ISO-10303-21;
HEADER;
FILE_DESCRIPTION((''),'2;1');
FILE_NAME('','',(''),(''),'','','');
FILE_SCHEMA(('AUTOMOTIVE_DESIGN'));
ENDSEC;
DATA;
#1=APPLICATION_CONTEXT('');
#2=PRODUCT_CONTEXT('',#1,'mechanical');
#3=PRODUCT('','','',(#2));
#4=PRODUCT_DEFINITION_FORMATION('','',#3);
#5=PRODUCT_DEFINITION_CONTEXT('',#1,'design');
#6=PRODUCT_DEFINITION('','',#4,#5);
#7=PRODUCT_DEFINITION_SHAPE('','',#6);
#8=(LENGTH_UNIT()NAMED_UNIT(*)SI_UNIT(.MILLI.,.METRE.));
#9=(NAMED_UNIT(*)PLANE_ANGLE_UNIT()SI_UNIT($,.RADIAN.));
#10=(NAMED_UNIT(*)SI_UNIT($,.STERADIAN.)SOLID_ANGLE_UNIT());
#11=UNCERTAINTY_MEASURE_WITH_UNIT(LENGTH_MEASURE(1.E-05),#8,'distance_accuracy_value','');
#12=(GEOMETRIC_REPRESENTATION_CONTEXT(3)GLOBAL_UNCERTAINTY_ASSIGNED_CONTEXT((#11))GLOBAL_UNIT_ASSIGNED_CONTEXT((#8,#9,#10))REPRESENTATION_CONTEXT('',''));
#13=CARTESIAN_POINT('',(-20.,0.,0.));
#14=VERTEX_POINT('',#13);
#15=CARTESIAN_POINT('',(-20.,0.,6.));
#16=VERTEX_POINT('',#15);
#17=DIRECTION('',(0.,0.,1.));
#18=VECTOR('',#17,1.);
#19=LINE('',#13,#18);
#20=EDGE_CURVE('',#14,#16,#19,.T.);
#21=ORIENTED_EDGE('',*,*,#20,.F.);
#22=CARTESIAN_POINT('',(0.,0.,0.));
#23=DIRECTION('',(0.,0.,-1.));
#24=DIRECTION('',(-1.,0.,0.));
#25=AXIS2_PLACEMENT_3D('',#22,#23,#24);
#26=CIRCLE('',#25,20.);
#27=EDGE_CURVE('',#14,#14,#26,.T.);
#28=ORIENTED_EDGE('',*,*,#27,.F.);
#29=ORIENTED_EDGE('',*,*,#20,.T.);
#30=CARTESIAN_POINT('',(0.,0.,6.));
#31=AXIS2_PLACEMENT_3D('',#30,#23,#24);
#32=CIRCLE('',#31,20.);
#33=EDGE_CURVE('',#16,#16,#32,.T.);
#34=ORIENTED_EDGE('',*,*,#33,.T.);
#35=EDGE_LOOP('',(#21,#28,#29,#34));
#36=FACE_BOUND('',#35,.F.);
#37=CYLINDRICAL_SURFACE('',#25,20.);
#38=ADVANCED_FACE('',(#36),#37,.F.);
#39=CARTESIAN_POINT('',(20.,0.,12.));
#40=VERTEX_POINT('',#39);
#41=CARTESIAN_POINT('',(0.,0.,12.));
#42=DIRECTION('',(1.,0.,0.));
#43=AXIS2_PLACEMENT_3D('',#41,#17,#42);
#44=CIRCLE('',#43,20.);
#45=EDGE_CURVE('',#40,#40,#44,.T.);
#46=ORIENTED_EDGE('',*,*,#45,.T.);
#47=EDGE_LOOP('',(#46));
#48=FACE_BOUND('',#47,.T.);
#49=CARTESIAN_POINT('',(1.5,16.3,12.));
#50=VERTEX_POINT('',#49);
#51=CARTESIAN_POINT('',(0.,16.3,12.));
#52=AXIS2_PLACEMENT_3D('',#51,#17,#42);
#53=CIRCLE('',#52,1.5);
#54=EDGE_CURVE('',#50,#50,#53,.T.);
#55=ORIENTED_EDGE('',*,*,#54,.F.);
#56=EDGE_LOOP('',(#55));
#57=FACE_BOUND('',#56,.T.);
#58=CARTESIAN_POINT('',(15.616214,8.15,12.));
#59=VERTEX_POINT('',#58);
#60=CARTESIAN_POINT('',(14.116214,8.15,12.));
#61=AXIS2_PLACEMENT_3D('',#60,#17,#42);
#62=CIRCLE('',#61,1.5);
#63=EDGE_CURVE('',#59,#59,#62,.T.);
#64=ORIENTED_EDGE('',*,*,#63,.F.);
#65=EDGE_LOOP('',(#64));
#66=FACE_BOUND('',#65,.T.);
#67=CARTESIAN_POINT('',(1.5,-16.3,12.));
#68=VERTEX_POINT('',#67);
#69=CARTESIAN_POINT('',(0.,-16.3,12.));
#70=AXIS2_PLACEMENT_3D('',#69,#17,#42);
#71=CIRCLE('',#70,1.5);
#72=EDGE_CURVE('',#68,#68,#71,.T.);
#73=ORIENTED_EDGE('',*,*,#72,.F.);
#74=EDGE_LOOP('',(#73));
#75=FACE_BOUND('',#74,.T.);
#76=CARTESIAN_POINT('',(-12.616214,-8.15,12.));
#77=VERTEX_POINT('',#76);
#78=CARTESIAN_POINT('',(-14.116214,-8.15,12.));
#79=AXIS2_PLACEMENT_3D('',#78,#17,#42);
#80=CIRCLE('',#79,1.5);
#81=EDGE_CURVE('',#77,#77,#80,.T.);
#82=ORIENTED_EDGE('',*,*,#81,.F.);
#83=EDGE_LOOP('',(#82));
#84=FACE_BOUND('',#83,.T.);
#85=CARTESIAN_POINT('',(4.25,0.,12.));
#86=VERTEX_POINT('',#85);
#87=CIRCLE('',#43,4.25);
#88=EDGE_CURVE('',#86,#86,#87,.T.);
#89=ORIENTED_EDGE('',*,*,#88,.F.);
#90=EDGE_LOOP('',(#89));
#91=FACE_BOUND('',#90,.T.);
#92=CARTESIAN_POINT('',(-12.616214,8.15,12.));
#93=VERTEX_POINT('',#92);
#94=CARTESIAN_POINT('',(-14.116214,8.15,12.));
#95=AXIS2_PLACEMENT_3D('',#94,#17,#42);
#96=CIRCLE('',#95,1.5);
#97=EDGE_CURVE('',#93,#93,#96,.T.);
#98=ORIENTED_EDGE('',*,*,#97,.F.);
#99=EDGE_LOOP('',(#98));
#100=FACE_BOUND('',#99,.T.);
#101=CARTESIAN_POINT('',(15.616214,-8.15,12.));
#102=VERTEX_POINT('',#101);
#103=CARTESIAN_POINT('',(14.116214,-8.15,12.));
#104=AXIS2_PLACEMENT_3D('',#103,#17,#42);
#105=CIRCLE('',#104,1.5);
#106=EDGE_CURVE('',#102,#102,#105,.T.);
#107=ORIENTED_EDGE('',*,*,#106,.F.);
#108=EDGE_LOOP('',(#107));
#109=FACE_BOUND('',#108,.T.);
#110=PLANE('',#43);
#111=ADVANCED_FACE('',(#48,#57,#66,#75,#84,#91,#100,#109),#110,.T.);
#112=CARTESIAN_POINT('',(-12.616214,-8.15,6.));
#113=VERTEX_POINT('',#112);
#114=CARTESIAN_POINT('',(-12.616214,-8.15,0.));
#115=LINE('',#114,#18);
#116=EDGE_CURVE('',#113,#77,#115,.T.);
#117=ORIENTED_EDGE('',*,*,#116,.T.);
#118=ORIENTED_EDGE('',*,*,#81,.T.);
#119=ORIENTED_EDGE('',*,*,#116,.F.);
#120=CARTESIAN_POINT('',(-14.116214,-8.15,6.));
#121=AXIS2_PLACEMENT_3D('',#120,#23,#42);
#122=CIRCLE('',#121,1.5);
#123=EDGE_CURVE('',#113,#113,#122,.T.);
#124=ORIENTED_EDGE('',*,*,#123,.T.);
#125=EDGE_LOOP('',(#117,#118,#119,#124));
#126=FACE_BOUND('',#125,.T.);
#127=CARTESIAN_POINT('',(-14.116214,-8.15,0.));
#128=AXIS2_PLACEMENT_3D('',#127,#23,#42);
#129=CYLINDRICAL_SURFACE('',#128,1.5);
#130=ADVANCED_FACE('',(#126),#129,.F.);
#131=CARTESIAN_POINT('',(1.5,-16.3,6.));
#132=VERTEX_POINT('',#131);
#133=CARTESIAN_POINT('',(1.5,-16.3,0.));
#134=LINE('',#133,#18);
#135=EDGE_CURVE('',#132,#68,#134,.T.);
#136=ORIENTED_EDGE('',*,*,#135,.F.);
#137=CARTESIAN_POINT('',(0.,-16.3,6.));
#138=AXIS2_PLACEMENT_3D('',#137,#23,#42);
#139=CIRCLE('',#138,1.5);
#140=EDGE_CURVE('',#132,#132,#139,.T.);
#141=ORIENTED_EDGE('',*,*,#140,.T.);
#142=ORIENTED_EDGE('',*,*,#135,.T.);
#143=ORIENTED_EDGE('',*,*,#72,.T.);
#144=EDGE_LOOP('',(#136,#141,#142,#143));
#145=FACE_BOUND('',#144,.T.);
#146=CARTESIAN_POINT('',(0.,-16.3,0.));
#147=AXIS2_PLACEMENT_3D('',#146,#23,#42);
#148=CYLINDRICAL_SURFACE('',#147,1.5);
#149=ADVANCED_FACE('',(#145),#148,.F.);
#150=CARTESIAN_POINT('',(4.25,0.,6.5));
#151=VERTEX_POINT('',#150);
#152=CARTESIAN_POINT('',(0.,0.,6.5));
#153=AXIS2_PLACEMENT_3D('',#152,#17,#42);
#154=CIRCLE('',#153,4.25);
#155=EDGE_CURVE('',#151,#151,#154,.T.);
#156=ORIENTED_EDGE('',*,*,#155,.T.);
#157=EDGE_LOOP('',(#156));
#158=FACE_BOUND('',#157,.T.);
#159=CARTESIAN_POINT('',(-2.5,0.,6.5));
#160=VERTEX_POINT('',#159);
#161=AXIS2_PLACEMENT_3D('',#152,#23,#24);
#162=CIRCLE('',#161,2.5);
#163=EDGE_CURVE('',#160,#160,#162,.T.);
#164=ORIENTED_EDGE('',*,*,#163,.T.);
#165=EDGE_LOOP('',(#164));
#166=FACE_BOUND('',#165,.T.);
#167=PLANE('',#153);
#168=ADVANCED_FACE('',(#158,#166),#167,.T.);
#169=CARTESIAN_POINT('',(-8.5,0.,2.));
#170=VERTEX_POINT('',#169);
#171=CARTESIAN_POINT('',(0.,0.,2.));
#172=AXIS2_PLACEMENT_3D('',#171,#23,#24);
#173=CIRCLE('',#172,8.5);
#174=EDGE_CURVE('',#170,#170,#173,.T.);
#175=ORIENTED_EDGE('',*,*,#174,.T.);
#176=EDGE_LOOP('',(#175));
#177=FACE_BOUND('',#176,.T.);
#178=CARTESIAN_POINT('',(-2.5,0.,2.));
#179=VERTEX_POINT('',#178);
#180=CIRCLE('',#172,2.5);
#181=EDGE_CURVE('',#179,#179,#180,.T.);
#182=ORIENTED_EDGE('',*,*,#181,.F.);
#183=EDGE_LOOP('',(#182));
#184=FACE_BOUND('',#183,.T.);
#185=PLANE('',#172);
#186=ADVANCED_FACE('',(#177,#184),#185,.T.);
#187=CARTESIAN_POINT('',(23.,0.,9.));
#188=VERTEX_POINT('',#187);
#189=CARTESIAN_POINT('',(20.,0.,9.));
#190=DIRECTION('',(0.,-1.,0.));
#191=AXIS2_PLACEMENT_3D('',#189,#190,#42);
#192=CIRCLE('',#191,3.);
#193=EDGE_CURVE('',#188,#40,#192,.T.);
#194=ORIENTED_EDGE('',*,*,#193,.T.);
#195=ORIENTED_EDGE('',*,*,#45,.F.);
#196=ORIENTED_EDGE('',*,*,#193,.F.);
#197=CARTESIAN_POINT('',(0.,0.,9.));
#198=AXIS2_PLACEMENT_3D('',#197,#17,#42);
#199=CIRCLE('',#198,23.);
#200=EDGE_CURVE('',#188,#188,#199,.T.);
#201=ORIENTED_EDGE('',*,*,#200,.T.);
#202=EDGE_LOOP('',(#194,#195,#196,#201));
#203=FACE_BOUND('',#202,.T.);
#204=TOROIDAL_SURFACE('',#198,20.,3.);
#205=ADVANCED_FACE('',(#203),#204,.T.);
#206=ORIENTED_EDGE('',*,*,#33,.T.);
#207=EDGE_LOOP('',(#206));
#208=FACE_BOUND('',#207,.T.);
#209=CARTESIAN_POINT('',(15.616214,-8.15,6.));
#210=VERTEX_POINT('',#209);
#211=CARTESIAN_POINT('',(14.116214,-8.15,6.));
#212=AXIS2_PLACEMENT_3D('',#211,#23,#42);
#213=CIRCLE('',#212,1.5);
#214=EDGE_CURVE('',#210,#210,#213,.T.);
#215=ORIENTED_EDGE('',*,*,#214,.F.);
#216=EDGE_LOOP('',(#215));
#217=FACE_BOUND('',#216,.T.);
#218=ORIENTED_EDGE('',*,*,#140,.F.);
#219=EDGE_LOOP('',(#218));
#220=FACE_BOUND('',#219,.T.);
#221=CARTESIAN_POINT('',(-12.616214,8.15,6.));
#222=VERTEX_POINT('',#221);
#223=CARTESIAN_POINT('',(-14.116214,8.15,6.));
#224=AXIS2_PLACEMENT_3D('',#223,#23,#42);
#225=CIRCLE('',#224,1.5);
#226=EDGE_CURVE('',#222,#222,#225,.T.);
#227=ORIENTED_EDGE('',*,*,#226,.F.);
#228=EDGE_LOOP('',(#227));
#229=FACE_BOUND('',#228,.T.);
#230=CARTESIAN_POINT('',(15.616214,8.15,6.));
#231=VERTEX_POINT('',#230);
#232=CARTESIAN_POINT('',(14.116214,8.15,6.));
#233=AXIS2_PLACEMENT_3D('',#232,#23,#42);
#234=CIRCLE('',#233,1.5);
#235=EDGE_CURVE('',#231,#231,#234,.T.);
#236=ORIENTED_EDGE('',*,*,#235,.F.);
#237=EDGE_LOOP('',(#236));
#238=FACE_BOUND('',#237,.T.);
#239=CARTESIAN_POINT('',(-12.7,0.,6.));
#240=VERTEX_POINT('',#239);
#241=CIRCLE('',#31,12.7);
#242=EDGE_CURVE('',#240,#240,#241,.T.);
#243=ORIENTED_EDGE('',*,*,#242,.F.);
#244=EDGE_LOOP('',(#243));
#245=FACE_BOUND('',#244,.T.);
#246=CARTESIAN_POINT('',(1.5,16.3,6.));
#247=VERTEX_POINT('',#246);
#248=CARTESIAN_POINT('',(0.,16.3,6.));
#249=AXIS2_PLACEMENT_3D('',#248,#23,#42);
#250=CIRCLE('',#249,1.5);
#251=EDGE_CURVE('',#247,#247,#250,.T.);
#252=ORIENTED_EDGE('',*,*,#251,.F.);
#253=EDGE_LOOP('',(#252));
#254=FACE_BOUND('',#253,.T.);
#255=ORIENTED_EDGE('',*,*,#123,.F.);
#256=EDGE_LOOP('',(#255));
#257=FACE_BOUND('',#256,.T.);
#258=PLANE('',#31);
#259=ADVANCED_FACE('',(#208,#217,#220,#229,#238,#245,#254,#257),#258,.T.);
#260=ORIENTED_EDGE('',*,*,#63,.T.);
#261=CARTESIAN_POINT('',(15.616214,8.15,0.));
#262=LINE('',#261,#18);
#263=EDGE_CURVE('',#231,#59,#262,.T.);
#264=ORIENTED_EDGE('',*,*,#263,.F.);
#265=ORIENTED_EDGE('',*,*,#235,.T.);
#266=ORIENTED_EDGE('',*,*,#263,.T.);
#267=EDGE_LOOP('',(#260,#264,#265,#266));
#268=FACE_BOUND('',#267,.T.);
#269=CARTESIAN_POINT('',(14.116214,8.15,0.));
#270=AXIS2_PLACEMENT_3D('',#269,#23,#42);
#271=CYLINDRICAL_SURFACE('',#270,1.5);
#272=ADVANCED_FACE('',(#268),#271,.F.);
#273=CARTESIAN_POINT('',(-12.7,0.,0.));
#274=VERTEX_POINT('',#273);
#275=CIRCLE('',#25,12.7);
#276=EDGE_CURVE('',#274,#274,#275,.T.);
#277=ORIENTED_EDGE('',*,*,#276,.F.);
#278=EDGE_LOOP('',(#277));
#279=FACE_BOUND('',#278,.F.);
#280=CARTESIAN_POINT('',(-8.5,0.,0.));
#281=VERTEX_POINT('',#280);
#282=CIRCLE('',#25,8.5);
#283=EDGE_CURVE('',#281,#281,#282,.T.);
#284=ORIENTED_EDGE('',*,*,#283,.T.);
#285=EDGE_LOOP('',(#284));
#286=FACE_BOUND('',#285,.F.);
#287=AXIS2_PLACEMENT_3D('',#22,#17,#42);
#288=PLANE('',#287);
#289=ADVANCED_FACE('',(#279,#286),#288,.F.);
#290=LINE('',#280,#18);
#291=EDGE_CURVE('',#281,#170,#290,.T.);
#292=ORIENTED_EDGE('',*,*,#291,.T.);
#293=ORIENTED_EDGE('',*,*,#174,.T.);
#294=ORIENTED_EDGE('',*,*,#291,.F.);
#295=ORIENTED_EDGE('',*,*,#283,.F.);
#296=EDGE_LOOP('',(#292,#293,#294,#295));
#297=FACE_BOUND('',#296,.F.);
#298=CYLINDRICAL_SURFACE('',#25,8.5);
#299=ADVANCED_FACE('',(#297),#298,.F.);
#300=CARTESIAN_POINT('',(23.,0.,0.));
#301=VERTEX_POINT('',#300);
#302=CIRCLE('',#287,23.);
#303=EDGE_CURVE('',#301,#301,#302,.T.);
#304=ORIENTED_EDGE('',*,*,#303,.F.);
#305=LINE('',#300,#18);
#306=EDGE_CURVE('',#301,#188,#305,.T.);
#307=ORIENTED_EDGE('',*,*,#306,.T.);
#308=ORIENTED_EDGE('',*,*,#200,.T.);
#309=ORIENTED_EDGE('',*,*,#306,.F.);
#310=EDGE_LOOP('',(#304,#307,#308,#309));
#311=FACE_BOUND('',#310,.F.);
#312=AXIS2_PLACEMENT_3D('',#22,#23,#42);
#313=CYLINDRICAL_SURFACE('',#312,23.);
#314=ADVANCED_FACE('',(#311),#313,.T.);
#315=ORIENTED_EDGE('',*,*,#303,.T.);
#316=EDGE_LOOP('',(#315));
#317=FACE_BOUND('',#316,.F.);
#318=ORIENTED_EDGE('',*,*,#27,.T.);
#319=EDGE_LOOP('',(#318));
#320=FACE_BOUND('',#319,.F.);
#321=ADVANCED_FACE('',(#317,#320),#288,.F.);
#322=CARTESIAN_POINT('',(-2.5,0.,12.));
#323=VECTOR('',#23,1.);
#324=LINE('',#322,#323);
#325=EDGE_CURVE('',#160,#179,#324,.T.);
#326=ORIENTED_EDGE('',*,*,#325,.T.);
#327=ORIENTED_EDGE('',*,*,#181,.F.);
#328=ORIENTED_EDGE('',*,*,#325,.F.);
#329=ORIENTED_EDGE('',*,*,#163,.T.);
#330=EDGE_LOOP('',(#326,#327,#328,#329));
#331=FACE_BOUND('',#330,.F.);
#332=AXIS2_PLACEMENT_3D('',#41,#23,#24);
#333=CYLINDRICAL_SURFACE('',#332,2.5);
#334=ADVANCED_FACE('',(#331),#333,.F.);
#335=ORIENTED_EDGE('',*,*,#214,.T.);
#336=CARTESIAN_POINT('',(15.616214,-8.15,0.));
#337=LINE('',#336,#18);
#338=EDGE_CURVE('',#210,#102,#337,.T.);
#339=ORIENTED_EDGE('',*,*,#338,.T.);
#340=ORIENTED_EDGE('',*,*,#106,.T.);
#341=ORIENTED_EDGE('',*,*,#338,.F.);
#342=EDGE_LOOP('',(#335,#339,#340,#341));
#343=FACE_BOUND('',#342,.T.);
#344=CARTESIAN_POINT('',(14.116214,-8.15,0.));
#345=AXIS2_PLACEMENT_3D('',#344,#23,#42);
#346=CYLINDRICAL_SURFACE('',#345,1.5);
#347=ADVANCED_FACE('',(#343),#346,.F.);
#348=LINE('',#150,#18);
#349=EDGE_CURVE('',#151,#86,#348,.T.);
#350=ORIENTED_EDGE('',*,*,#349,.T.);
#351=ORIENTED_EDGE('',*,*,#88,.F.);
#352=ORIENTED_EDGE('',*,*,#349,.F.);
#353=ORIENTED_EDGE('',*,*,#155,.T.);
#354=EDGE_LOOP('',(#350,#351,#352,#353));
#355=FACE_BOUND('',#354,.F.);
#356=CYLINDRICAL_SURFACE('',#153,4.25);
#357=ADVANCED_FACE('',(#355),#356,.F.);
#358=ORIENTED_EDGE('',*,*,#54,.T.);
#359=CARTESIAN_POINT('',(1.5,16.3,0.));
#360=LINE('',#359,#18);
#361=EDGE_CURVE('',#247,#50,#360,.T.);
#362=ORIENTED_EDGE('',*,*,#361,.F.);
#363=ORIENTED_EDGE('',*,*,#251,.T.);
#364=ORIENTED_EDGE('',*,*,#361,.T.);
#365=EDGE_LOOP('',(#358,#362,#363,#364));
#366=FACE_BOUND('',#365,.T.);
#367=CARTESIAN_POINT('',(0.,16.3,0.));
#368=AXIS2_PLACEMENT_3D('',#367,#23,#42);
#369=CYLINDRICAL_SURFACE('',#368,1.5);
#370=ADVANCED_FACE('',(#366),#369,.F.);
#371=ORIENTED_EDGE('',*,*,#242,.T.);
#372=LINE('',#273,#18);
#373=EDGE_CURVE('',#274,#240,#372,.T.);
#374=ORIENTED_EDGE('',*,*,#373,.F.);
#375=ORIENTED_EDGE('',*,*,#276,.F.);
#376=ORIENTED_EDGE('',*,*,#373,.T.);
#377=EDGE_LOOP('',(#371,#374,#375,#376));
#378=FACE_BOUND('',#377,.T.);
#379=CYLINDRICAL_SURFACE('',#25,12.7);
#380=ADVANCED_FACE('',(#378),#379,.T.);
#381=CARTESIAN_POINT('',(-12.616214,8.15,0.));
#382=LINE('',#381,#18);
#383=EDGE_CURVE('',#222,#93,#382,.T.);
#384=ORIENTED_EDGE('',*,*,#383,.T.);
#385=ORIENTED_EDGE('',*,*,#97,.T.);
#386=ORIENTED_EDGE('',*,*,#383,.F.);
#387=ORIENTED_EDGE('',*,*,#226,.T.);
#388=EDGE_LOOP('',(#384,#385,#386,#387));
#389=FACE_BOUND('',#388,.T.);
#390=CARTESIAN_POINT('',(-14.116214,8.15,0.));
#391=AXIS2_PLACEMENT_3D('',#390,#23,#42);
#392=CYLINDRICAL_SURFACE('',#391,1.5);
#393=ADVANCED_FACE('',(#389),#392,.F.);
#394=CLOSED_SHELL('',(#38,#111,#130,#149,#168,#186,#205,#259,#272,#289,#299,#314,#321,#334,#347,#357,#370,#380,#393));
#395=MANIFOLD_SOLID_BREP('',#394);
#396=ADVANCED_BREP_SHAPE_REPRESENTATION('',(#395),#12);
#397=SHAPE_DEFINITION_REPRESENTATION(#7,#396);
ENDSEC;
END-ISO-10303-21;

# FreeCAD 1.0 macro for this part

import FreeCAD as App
import Part
import Sketcher

V = App.Vector


def edges_at(feature, points):
    """Names of the edges that pass closest to the given points."""
    edges = feature.Shape.Edges
    near = lambda p: min(range(len(edges)), key=lambda i: edges[i].distToShape(Part.Vertex(*p))[0])
    return sorted({f"Edge{near(p) + 1}" for p in points})

doc = App.newDocument("Part")
body = doc.addObject("PartDesign::Body", "Body")

# Sketch on XY plane
sketch1 = body.newObject("Sketcher::SketchObject", "Sketch")
sketch1.AttachmentSupport = (doc.getObject("XY_Plane"), [""])
sketch1.MapMode = "FlatFace"
sketch1.addGeometry(Part.Circle(V(0, 0, 0), V(0, 0, 1), 23), False)
sketch1.addGeometry(Part.Circle(V(-14.1, -8.2, 0), V(0, 0, 1), 1.5), False)
sketch1.addGeometry(Part.Circle(V(0, -16.3, 0), V(0, 0, 1), 1.5), False)
sketch1.addGeometry(Part.Circle(V(14.1, -8.2, 0), V(0, 0, 1), 1.5), False)
sketch1.addGeometry(Part.Circle(V(-14.1, 8.2, 0), V(0, 0, 1), 1.5), False)
sketch1.addGeometry(Part.Circle(V(14.1, 8.2, 0), V(0, 0, 1), 1.5), False)
sketch1.addGeometry(Part.Circle(V(0, 16.3, 0), V(0, 0, 1), 1.5), False)
sketch1.addConstraint(Sketcher.Constraint("Coincident", 0, 3, -1, 1))
sketch1.addConstraint(Sketcher.Constraint("Equal", 1, 2))
sketch1.addConstraint(Sketcher.Constraint("Equal", 2, 3))
sketch1.addConstraint(Sketcher.Constraint("Equal", 3, 4))
sketch1.addConstraint(Sketcher.Constraint("Equal", 4, 5))
sketch1.addConstraint(Sketcher.Constraint("Equal", 5, 6))
sketch1.addConstraint(Sketcher.Constraint("Symmetric", 3, 3, 4, 3, -1, 1))
sketch1.addConstraint(Sketcher.Constraint("Symmetric", 1, 3, 5, 3, -1, 1))
sketch1.addConstraint(Sketcher.Constraint("Symmetric", 2, 3, 6, 3, -1, 1))
sketch1.addConstraint(Sketcher.Constraint("Symmetric", 1, 3, 3, 3, -2))
sketch1.addConstraint(Sketcher.Constraint("PointOnObject", 2, 3, -2))
sketch1.addConstraint(Sketcher.Constraint("Diameter", 0, 46.0))
sketch1.addConstraint(Sketcher.Constraint("Diameter", 1, 3.0))
sketch1.addConstraint(Sketcher.Constraint("DistanceY", 2, 3, -1, 1, 16.3))
sketch1.addConstraint(Sketcher.Constraint("DistanceY", 1, 3, 4, 3, 16.3))
sketch1.addConstraint(Sketcher.Constraint("DistanceX", 1, 3, 3, 3, 28.232428))
pad1 = body.newObject("PartDesign::Pad", "Pad")
pad1.Profile = sketch1
pad1.Length = 12

# Sketch on XY plane
sketch2 = body.newObject("Sketcher::SketchObject", "Sketch001")
sketch2.AttachmentSupport = (doc.getObject("XY_Plane"), [""])
sketch2.MapMode = "FlatFace"
sketch2.addGeometry(Part.Circle(V(0, 0, 0), V(0, 0, 1), 20), False)
sketch2.addGeometry(Part.Circle(V(0, 0, 0), V(0, 0, 1), 13), False)
sketch2.addConstraint(Sketcher.Constraint("Coincident", 0, 3, -1, 1))
sketch2.addConstraint(Sketcher.Constraint("Coincident", 1, 3, -1, 1))
sketch2.addConstraint(Sketcher.Constraint("Diameter", 0, 40.0))
sketch2.addConstraint(Sketcher.Constraint("Diameter", 1, 25.4))
pocket1 = body.newObject("PartDesign::Pocket", "Pocket")
pocket1.Profile = sketch2
pocket1.Length = 6
pocket1.Reversed = True
doc.recompute()

fillet = body.newObject("PartDesign::Fillet", "Fillet")
fillet.Base = (pocket1, edges_at(pocket1, [(-23, 0, 12)]))
fillet.Radius = 3

# Sketch on XY plane
sketch3 = body.newObject("Sketcher::SketchObject", "Sketch002")
sketch3.AttachmentSupport = (doc.getObject("XY_Plane"), [""])
sketch3.MapMode = "FlatFace"
sketch3.AttachmentOffset = App.Placement(V(0, 0, 12), App.Rotation())
sketch3.addGeometry(Part.Circle(V(0, 0, 0), V(0, 0, 1), 2.5), False)
sketch3.addConstraint(Sketcher.Constraint("Coincident", 0, 3, -1, 1))
sketch3.addConstraint(Sketcher.Constraint("Diameter", 0, 5.0))
doc.recompute()
hole = body.newObject("PartDesign::Hole", "Hole")
hole.Profile = sketch3
hole.ThreadType = "None"
hole.Diameter = 5
hole.DepthType = "ThroughAll"
hole.HoleCutType = "Counterbore"
hole.HoleCutDiameter = 8.5
hole.HoleCutDepth = 5.5

# Sketch on XY plane
sketch4 = body.newObject("Sketcher::SketchObject", "Sketch003")
sketch4.AttachmentSupport = (doc.getObject("XY_Plane"), [""])
sketch4.MapMode = "FlatFace"
sketch4.addGeometry(Part.Circle(V(0, 0, 0), V(0, 0, 1), 8), False)
sketch4.addConstraint(Sketcher.Constraint("Coincident", 0, 3, -1, 1))
sketch4.addConstraint(Sketcher.Constraint("Diameter", 0, 17.0))
pocket2 = body.newObject("PartDesign::Pocket", "Pocket001")
pocket2.Profile = sketch4
pocket2.Length = 2
pocket2.Reversed = True

doc.recompute()
